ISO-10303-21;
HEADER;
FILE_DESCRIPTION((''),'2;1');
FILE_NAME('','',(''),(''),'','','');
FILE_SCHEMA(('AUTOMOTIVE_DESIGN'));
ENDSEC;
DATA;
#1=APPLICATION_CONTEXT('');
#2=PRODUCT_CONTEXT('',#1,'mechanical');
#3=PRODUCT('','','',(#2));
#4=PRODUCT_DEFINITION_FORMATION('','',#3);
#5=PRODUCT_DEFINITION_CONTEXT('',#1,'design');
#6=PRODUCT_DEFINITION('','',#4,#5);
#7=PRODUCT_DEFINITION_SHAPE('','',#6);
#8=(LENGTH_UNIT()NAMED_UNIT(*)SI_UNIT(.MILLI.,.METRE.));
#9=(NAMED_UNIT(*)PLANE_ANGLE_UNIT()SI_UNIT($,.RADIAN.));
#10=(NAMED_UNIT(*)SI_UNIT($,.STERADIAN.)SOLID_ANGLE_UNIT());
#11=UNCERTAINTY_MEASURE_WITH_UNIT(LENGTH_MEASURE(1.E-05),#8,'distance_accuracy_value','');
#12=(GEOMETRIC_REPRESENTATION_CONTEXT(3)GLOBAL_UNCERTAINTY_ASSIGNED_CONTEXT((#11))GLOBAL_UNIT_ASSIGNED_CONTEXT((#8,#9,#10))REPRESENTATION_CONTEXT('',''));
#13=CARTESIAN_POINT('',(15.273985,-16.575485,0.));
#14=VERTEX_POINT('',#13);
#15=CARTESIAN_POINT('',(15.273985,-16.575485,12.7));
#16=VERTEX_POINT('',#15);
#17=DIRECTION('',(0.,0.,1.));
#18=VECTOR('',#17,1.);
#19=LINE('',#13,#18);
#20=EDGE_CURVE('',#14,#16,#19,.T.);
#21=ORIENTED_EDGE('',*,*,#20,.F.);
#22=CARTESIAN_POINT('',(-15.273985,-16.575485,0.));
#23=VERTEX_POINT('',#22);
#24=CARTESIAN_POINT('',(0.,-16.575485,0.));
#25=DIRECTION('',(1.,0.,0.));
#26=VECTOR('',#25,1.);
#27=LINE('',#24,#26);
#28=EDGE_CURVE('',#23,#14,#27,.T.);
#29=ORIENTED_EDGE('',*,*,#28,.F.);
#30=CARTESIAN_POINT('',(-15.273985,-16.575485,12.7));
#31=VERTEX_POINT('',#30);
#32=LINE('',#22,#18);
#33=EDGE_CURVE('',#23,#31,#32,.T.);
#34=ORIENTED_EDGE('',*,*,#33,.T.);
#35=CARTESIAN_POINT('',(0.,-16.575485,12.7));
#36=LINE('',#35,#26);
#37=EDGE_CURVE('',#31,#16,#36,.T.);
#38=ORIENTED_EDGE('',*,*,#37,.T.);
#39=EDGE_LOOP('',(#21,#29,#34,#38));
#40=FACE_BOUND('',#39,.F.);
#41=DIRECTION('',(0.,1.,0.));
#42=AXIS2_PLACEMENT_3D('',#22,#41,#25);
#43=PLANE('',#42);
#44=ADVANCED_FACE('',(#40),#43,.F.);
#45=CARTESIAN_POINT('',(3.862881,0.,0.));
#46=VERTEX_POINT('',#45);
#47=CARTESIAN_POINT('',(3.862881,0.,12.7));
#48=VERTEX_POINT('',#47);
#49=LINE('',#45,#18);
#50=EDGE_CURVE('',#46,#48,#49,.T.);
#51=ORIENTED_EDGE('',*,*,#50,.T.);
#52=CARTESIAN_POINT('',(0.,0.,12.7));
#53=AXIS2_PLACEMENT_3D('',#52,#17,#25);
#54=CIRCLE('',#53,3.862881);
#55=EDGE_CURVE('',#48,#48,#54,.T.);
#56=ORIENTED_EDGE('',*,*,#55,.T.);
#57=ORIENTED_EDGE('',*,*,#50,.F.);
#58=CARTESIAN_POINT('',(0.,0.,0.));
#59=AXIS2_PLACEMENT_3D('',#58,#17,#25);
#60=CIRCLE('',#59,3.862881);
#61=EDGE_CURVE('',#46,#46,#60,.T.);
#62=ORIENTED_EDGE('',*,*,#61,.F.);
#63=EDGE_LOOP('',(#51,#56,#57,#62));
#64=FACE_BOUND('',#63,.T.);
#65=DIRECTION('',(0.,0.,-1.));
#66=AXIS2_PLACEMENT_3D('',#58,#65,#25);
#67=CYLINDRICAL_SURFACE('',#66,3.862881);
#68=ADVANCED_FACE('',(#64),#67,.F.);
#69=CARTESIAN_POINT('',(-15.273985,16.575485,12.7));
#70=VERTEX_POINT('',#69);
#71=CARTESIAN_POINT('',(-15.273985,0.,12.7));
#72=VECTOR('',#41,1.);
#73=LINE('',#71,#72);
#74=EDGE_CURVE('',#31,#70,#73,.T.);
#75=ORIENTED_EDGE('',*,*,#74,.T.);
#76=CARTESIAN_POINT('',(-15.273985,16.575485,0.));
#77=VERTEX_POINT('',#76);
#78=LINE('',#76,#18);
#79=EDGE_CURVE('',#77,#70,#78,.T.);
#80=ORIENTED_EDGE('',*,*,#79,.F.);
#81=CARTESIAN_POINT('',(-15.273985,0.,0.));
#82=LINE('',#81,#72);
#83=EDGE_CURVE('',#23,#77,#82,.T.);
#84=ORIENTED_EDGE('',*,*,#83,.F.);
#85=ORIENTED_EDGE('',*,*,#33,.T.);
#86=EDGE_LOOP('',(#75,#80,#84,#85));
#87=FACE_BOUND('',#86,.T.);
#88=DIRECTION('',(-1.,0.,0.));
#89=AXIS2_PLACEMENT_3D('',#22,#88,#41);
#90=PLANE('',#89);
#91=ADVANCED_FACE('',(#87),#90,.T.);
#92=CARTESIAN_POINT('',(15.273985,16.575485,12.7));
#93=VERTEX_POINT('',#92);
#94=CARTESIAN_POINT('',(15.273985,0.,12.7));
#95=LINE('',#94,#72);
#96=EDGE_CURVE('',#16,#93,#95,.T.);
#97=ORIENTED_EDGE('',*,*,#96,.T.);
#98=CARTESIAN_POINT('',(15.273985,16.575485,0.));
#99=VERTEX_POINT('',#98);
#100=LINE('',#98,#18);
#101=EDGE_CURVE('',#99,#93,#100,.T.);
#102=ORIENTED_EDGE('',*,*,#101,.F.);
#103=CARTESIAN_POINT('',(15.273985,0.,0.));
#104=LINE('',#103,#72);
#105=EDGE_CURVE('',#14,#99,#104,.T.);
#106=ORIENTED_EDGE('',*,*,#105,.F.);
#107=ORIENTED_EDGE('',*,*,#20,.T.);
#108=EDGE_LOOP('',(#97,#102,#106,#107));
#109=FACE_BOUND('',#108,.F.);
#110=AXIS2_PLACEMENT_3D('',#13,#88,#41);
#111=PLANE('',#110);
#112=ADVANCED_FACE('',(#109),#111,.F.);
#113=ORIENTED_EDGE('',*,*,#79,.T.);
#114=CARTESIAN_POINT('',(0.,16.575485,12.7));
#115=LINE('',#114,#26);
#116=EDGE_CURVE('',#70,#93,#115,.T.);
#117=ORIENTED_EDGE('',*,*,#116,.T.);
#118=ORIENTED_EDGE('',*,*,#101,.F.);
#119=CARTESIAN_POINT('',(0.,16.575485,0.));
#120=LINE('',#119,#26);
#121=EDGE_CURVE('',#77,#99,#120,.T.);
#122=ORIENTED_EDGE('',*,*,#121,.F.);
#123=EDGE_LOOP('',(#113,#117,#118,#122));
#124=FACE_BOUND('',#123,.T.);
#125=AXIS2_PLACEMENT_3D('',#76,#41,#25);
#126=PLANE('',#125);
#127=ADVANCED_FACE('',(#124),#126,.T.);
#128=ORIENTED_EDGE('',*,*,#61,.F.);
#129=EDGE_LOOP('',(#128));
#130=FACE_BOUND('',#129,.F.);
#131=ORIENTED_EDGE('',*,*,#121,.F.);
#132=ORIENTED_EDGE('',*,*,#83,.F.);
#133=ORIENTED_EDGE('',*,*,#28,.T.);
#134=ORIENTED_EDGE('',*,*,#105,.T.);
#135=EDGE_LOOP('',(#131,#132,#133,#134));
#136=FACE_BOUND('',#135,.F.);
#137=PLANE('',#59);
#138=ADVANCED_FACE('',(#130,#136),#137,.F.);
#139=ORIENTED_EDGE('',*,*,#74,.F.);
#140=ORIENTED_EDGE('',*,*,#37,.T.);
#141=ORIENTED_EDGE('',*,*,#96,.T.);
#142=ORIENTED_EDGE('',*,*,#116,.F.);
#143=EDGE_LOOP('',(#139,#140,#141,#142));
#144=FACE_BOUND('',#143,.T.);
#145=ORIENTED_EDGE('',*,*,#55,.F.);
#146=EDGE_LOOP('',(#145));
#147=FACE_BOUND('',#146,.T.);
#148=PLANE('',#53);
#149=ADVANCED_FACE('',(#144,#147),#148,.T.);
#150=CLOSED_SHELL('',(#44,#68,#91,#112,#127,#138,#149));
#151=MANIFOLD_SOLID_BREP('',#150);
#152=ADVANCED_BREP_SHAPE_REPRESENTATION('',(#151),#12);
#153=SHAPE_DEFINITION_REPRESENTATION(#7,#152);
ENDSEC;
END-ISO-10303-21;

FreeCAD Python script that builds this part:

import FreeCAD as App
import Part
import Sketcher
from FreeCAD import Vector
Q = App.Units.Quantity

doc = App.newDocument("Part")
body = doc.addObject("PartDesign::Body", "Body")

# Sketch on XY plane
sketch1 = body.newObject("Sketcher::SketchObject", "Sketch")
sketch1.AttachmentSupport = (doc.getObject("XY_Plane"), [""])
sketch1.MapMode = "FlatFace"
sketch1.addGeometry([
    Part.LineSegment(Vector(-15.273985, 16.575485, 0), Vector(-15.273985, -16.575485, 0)),  # 0
    Part.LineSegment(Vector(-15.273985, -16.575485, 0), Vector(15.273985, -16.575485, 0)),  # 1
    Part.LineSegment(Vector(15.273985, -16.575485, 0), Vector(15.273985, 16.575485, 0)),  # 2
    Part.LineSegment(Vector(15.273985, 16.575485, 0), Vector(-15.273985, 16.575485, 0)),  # 3
    Part.Circle(Vector(0, 0, 0), Vector(0, 0, 1), 3.862881),  # 4
], False)
sketch1.addConstraint([
    Sketcher.Constraint("Coincident", 0, 2, 1, 1),
    Sketcher.Constraint("Coincident", 1, 2, 2, 1),
    Sketcher.Constraint("Coincident", 2, 2, 3, 1),
    Sketcher.Constraint("Coincident", 3, 2, 0, 1),
    Sketcher.Constraint("Vertical", 0),
    Sketcher.Constraint("Horizontal", 1),
    Sketcher.Constraint("Vertical", 2),
    Sketcher.Constraint("Horizontal", 3),
    Sketcher.Constraint("Coincident", 4, 3, -1, 1),
    Sketcher.Constraint("Symmetric", 0, 2, 2, 2, -1, 1),
    Sketcher.Constraint("Diameter", 4, Q("7.725761 mm")),
    Sketcher.Constraint("DistanceX", 1, 1, 1, 2, Q("30.547969 mm")),
    Sketcher.Constraint("DistanceY", 0, 2, 0, 1, Q("33.150971 mm")),
])
pad1 = body.newObject("PartDesign::Pad", "Pad")
pad1.Profile = sketch1
pad1.Length = Q("0.5 in")

doc.recompute()
